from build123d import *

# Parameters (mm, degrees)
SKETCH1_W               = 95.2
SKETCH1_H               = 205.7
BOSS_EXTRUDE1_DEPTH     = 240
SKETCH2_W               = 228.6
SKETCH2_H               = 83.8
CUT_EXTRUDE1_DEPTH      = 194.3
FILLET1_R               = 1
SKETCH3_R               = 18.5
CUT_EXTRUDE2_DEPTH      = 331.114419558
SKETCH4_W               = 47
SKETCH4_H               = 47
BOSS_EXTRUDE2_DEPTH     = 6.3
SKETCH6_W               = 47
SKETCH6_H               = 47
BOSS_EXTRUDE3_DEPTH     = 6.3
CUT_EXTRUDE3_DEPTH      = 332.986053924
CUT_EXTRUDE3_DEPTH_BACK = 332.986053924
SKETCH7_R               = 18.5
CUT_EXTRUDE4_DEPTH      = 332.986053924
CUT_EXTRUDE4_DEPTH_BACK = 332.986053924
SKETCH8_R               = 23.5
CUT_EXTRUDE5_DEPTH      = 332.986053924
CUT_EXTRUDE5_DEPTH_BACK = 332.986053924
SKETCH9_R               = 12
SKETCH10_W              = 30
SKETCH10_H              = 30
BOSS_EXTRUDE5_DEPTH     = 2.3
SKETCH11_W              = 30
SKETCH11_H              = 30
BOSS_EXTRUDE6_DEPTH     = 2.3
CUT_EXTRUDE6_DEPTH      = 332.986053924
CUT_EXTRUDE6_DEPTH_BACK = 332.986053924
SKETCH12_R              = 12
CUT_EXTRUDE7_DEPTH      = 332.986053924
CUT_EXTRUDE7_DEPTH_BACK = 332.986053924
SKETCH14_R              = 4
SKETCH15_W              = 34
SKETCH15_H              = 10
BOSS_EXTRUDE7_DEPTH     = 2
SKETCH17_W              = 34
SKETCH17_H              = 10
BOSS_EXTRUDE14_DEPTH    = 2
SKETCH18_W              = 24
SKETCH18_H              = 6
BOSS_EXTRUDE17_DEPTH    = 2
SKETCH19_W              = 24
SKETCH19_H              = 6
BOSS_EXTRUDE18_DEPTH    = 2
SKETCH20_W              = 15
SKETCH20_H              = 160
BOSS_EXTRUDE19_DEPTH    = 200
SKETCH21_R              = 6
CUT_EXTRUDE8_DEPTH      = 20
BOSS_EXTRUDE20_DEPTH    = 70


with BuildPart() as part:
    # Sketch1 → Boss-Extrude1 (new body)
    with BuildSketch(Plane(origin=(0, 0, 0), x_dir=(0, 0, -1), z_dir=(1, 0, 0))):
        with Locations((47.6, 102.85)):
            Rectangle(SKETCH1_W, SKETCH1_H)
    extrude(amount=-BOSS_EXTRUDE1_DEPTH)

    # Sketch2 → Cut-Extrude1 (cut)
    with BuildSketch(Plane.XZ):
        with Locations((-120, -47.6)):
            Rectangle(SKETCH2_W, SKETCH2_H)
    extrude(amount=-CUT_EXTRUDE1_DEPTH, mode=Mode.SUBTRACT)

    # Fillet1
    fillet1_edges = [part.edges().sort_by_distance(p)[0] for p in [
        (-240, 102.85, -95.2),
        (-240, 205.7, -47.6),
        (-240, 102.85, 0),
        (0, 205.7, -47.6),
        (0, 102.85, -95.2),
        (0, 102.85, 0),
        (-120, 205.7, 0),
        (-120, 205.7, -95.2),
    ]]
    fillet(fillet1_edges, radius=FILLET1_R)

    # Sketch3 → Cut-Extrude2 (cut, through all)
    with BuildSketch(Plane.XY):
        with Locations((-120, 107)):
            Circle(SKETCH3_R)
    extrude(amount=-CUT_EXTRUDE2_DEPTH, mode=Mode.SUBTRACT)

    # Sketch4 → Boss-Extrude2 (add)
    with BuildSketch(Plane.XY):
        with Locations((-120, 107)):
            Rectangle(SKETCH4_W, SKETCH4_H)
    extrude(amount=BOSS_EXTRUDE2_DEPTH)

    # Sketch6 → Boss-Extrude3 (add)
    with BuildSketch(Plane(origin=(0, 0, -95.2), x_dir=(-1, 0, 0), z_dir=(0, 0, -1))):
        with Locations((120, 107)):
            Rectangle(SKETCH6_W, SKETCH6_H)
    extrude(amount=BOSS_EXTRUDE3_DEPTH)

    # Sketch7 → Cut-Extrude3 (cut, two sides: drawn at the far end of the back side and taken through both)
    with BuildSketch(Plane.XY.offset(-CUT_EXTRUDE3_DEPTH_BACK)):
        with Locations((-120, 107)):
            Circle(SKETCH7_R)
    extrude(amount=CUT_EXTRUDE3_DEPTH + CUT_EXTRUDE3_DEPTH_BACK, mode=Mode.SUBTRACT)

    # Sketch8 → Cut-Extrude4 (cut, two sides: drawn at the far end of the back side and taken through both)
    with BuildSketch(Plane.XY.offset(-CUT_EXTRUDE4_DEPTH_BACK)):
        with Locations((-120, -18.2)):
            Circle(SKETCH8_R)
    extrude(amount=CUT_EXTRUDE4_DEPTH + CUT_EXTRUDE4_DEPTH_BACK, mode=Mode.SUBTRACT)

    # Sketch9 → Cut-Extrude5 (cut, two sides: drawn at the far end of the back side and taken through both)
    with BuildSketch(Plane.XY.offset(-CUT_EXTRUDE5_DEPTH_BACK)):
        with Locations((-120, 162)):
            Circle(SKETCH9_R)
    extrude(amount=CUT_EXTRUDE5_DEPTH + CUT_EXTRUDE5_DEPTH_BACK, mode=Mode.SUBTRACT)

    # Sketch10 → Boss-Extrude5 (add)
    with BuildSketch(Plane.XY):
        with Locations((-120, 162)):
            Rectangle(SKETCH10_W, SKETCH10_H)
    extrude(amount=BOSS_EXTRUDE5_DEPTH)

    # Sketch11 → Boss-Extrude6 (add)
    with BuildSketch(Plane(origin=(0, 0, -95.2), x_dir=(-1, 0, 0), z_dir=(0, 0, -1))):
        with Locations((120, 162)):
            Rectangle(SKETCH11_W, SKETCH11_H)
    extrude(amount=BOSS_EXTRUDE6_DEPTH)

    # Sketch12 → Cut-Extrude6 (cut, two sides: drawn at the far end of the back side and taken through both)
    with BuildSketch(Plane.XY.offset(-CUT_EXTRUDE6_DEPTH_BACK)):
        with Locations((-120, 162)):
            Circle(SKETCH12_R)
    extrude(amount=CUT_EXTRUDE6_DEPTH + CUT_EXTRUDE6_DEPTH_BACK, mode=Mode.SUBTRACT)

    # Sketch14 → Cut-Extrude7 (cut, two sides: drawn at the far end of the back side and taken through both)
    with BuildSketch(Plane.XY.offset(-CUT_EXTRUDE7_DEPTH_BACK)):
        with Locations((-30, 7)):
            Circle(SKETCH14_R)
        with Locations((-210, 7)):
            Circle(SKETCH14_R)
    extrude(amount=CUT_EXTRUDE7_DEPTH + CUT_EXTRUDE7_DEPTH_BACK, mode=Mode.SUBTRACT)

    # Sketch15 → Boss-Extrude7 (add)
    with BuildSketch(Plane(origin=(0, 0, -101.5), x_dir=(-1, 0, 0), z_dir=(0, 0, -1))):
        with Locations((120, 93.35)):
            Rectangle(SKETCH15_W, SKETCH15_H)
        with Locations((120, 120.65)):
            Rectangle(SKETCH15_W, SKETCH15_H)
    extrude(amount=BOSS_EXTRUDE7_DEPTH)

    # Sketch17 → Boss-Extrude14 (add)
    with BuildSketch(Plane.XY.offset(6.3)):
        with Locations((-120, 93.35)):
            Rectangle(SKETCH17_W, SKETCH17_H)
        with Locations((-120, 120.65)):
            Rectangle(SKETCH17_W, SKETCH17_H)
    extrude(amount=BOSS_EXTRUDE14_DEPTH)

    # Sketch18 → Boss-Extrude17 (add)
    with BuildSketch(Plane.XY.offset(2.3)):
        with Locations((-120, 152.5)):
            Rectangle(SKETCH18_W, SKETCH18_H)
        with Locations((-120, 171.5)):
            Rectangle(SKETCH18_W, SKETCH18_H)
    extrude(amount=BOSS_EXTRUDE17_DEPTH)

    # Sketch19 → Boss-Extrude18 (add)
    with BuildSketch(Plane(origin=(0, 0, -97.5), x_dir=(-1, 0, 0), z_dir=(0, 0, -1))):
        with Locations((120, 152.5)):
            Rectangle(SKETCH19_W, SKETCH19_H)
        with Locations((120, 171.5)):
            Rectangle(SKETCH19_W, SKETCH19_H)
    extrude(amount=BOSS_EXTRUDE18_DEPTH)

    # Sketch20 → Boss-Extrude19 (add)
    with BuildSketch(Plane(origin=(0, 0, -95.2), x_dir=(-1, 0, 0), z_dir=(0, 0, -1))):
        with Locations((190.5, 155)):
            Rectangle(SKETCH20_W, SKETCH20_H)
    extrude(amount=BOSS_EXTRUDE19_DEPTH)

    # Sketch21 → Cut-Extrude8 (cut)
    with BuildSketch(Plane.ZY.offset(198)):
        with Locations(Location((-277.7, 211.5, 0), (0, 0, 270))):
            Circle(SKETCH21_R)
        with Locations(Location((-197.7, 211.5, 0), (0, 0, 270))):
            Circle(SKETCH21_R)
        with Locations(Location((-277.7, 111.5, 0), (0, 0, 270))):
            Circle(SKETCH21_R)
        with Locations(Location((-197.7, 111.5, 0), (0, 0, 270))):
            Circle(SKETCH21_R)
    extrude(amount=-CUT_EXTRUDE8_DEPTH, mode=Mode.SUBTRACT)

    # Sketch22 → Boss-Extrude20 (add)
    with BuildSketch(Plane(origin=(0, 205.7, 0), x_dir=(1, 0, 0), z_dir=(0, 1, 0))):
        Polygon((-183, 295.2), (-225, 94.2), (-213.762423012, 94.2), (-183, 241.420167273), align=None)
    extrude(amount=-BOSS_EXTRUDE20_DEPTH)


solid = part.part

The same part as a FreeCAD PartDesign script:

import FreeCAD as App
import Part
import Sketcher


def edges_at(feature, points):
    """Names of the edges that pass closest to the given points."""
    edges = feature.Shape.Edges
    near = lambda p: min(range(len(edges)), key=lambda i: edges[i].distToShape(Part.Vertex(*p))[0])
    return sorted({f"Edge{near(p) + 1}" for p in points})


def add_polygon(sketch, points):
    """Adds a closed chain of lines whose ends are joined by coincident constraints."""
    first, n = sketch.GeometryCount, len(points)
    for a, b in zip(points, points[1:] + points[:1]):
        sketch.addGeometry(Part.LineSegment(App.Vector(*a, 0), App.Vector(*b, 0)), False)
    for i in range(n):
        sketch.addConstraint(Sketcher.Constraint("Coincident", first + i, 2, first + (i + 1) % n, 1))

doc = App.newDocument("Part")
body = doc.addObject("PartDesign::Body", "Body")

sketch1 = body.newObject("Sketcher::SketchObject", "Sketch")
sketch1.AttachmentSupport = (doc.getObject("YZ_Plane"), [""])
sketch1.MapMode = "FlatFace"
add_polygon(sketch1, [(206, 0), (0, 0), (0, -95), (206, -95)])
sketch1.addConstraint([
    Sketcher.Constraint("Horizontal", 0),
    Sketcher.Constraint("Vertical", 1),
    Sketcher.Constraint("Horizontal", 2),
    Sketcher.Constraint("Vertical", 3),
    Sketcher.Constraint("Coincident", 0, 2, -1, 1),
    Sketcher.Constraint("DistanceX", 0, 2, 0, 1, 205.7),
    Sketcher.Constraint("DistanceY", 1, 2, 1, 1, 95.2),
])
pad1 = body.newObject("PartDesign::Pad", "Pad")
pad1.Profile = sketch1
pad1.Length = 240
pad1.Reversed = True

sketch2 = body.newObject("Sketcher::SketchObject", "Sketch001")
sketch2.AttachmentSupport = (doc.getObject("XZ_Plane"), [""])
sketch2.MapMode = "FlatFace"
add_polygon(sketch2, [(-234, -6), (-234, -90), (-6, -90), (-6, -6)])
sketch2.addConstraint([
    Sketcher.Constraint("Vertical", 0),
    Sketcher.Constraint("Horizontal", 1),
    Sketcher.Constraint("Vertical", 2),
    Sketcher.Constraint("Horizontal", 3),
    Sketcher.Constraint("DistanceX", 1, 1, 1, 2, 228.6),
    Sketcher.Constraint("DistanceY", 0, 2, 0, 1, 83.8),
    Sketcher.Constraint("DistanceX", 0, 2, -1, 1, 234.3),
    Sketcher.Constraint("DistanceY", 0, 2, -1, 1, 89.5),
])
pocket1 = body.newObject("PartDesign::Pocket", "Pocket")
pocket1.Profile = sketch2
pocket1.Length = 194.3
doc.recompute()

fillet = body.newObject("PartDesign::Fillet", "Fillet")
fillet.Base = (pocket1, edges_at(pocket1, [
    (-240, 102.85, -95.2),
    (-240, 205.7, -47.6),
    (-240, 102.85, 0),
    (0, 205.7, -47.6),
    (0, 102.85, -95.2),
    (0, 102.85, 0),
    (-120, 205.7, 0),
    (-120, 205.7, -95.2),
]))
fillet.Radius = 1

sketch3 = body.newObject("Sketcher::SketchObject", "Sketch002")
sketch3.AttachmentSupport = (doc.getObject("XY_Plane"), [""])
sketch3.MapMode = "FlatFace"
sketch3.addGeometry(Part.Circle(App.Vector(-120, 107, 0), App.Vector(0, 0, 1), 18), False)
sketch3.addConstraint([
    Sketcher.Constraint("Diameter", 0, 37.0),
    Sketcher.Constraint("DistanceX", 0, 3, -1, 1, 120.0),
    Sketcher.Constraint("DistanceY", -1, 1, 0, 3, 107.0),
])
pocket2 = body.newObject("PartDesign::Pocket", "Pocket001")
pocket2.Profile = sketch3
pocket2.Type = "ThroughAll"

sketch4 = body.newObject("Sketcher::SketchObject", "Sketch003")
sketch4.AttachmentSupport = (doc.getObject("XY_Plane"), [""])
sketch4.MapMode = "FlatFace"
add_polygon(sketch4, [(-144, 130), (-144, 84), (-96, 84), (-96, 130)])
sketch4.addConstraint([
    Sketcher.Constraint("Vertical", 0),
    Sketcher.Constraint("Horizontal", 1),
    Sketcher.Constraint("Vertical", 2),
    Sketcher.Constraint("Horizontal", 3),
    Sketcher.Constraint("Equal", 3, 0),
    Sketcher.Constraint("DistanceX", 1, 1, 1, 2, 47.0),
    Sketcher.Constraint("DistanceX", 0, 2, -1, 1, 143.5),
    Sketcher.Constraint("DistanceY", -1, 1, 0, 2, 83.5),
])
pad2 = body.newObject("PartDesign::Pad", "Pad001")
pad2.Profile = sketch4
pad2.Length = 6.3

sketch5 = body.newObject("Sketcher::SketchObject", "Sketch004")
sketch5.AttachmentSupport = (doc.getObject("XY_Plane"), [""])
sketch5.MapMode = "FlatFace"
sketch5.AttachmentOffset = App.Placement(App.Vector(0, 0, -95.2), App.Rotation())
add_polygon(sketch5, [(-96, 130), (-96, 84), (-144, 84), (-144, 130)])
sketch5.addConstraint([
    Sketcher.Constraint("Vertical", 0),
    Sketcher.Constraint("Horizontal", 1),
    Sketcher.Constraint("Vertical", 2),
    Sketcher.Constraint("Horizontal", 3),
    Sketcher.Constraint("Equal", 3, 0),
    Sketcher.Constraint("DistanceX", 1, 2, 1, 1, 47.0),
    Sketcher.Constraint("DistanceX", 0, 2, -1, 1, 96.5),
    Sketcher.Constraint("DistanceY", -1, 1, 0, 2, 83.5),
])
pad3 = body.newObject("PartDesign::Pad", "Pad002")
pad3.Profile = sketch5
pad3.Length = 6.3
pad3.Reversed = True

sketch6 = body.newObject("Sketcher::SketchObject", "Sketch005")
sketch6.AttachmentSupport = (doc.getObject("XY_Plane"), [""])
sketch6.MapMode = "FlatFace"
sketch6.addGeometry(Part.Circle(App.Vector(-120, 107, 0), App.Vector(0, 0, 1), 18), False)
sketch6.addConstraint([
    Sketcher.Constraint("Diameter", 0, 37.0),
    Sketcher.Constraint("DistanceX", 0, 3, -1, 1, 120.0),
    Sketcher.Constraint("DistanceY", -1, 1, 0, 3, 107.0),
])
pocket3 = body.newObject("PartDesign::Pocket", "Pocket002")
pocket3.Profile = sketch6
pocket3.Type = "ThroughAll"
pocket3.Midplane = True

sketch7 = body.newObject("Sketcher::SketchObject", "Sketch006")
sketch7.AttachmentSupport = (doc.getObject("XY_Plane"), [""])
sketch7.MapMode = "FlatFace"
sketch7.addGeometry(Part.Circle(App.Vector(-120, -18, 0), App.Vector(0, 0, 1), 24), False)
sketch7.addConstraint([
    Sketcher.Constraint("Diameter", 0, 47.0),
    Sketcher.Constraint("DistanceX", 0, 3, -1, 1, 120.0),
    Sketcher.Constraint("DistanceY", 0, 3, -1, 1, 18.2),
])
pocket4 = body.newObject("PartDesign::Pocket", "Pocket003")
pocket4.Profile = sketch7
pocket4.Type = "ThroughAll"
pocket4.Midplane = True

sketch8 = body.newObject("Sketcher::SketchObject", "Sketch007")
sketch8.AttachmentSupport = (doc.getObject("XY_Plane"), [""])
sketch8.MapMode = "FlatFace"
sketch8.addGeometry(Part.Circle(App.Vector(-120, 162, 0), App.Vector(0, 0, 1), 12), False)
sketch8.addConstraint([
    Sketcher.Constraint("Diameter", 0, 24.0),
    Sketcher.Constraint("DistanceX", 0, 3, -1, 1, 120.0),
    Sketcher.Constraint("DistanceY", -1, 1, 0, 3, 162.0),
])
pocket5 = body.newObject("PartDesign::Pocket", "Pocket004")
pocket5.Profile = sketch8
pocket5.Type = "ThroughAll"
pocket5.Midplane = True

sketch9 = body.newObject("Sketcher::SketchObject", "Sketch008")
sketch9.AttachmentSupport = (doc.getObject("XY_Plane"), [""])
sketch9.MapMode = "FlatFace"
add_polygon(sketch9, [(-135, 177), (-135, 147), (-105, 147), (-105, 177)])
sketch9.addConstraint([
    Sketcher.Constraint("Vertical", 0),
    Sketcher.Constraint("Horizontal", 1),
    Sketcher.Constraint("Vertical", 2),
    Sketcher.Constraint("Horizontal", 3),
    Sketcher.Constraint("Equal", 3, 0),
    Sketcher.Constraint("DistanceX", 1, 1, 1, 2, 30.0),
    Sketcher.Constraint("DistanceX", 0, 2, -1, 1, 135.0),
    Sketcher.Constraint("DistanceY", -1, 1, 0, 2, 147.0),
])
pad4 = body.newObject("PartDesign::Pad", "Pad003")
pad4.Profile = sketch9
pad4.Length = 2.3

sketch10 = body.newObject("Sketcher::SketchObject", "Sketch009")
sketch10.AttachmentSupport = (doc.getObject("XY_Plane"), [""])
sketch10.MapMode = "FlatFace"
sketch10.AttachmentOffset = App.Placement(App.Vector(0, 0, -95.2), App.Rotation())
add_polygon(sketch10, [(-105, 177), (-105, 147), (-135, 147), (-135, 177)])
sketch10.addConstraint([
    Sketcher.Constraint("Vertical", 0),
    Sketcher.Constraint("Horizontal", 1),
    Sketcher.Constraint("Vertical", 2),
    Sketcher.Constraint("Horizontal", 3),
    Sketcher.Constraint("Equal", 3, 0),
    Sketcher.Constraint("DistanceX", 1, 2, 1, 1, 30.0),
    Sketcher.Constraint("DistanceX", 0, 2, -1, 1, 105.0),
    Sketcher.Constraint("DistanceY", -1, 1, 0, 2, 147.0),
])
pad5 = body.newObject("PartDesign::Pad", "Pad004")
pad5.Profile = sketch10
pad5.Length = 2.3
pad5.Reversed = True

sketch11 = body.newObject("Sketcher::SketchObject", "Sketch010")
sketch11.AttachmentSupport = (doc.getObject("XY_Plane"), [""])
sketch11.MapMode = "FlatFace"
sketch11.addGeometry(Part.Circle(App.Vector(-120, 162, 0), App.Vector(0, 0, 1), 12), False)
sketch11.addConstraint([
    Sketcher.Constraint("Diameter", 0, 24.0),
    Sketcher.Constraint("DistanceX", 0, 3, -1, 1, 120.0),
    Sketcher.Constraint("DistanceY", -1, 1, 0, 3, 162.0),
])
pocket6 = body.newObject("PartDesign::Pocket", "Pocket005")
pocket6.Profile = sketch11
pocket6.Type = "ThroughAll"
pocket6.Midplane = True

sketch12 = body.newObject("Sketcher::SketchObject", "Sketch011")
sketch12.AttachmentSupport = (doc.getObject("XY_Plane"), [""])
sketch12.MapMode = "FlatFace"
sketch12.addGeometry([
    Part.Circle(App.Vector(-30, 7, 0), App.Vector(0, 0, 1), 4),
    Part.Circle(App.Vector(-210, 7, 0), App.Vector(0, 0, 1), 4),
], False)
sketch12.addConstraint([
    Sketcher.Constraint("Equal", 0, 1),
    Sketcher.Constraint("Horizontal", 0, 3, 1, 3),
    Sketcher.Constraint("Diameter", 0, 8.0),
    Sketcher.Constraint("DistanceX", 0, 3, -1, 1, 30.0),
    Sketcher.Constraint("DistanceY", -1, 1, 0, 3, 7.0),
    Sketcher.Constraint("DistanceX", 1, 3, -1, 1, 210.0),
])
pocket7 = body.newObject("PartDesign::Pocket", "Pocket006")
pocket7.Profile = sketch12
pocket7.Type = "ThroughAll"
pocket7.Midplane = True

sketch13 = body.newObject("Sketcher::SketchObject", "Sketch012")
sketch13.AttachmentSupport = (doc.getObject("XY_Plane"), [""])
sketch13.MapMode = "FlatFace"
sketch13.AttachmentOffset = App.Placement(App.Vector(0, 0, -101.5), App.Rotation())
add_polygon(sketch13, [(-103, 98), (-103, 88), (-137, 88), (-137, 98)])
add_polygon(sketch13, [(-103, 126), (-103, 116), (-137, 116), (-137, 126)])
sketch13.addConstraint([
    Sketcher.Constraint("Vertical", 0),
    Sketcher.Constraint("Horizontal", 1),
    Sketcher.Constraint("Vertical", 2),
    Sketcher.Constraint("Horizontal", 3),
    Sketcher.Constraint("Vertical", 4),
    Sketcher.Constraint("Horizontal", 5),
    Sketcher.Constraint("Vertical", 6),
    Sketcher.Constraint("Horizontal", 7),
    Sketcher.Constraint("Vertical", 3, 2, 4, 2),
    Sketcher.Constraint("Vertical", 2, 2, 5, 2),
    Sketcher.Constraint("Equal", 2, 4),
    Sketcher.Constraint("DistanceX", 1, 2, 1, 1, 34.0),
    Sketcher.Constraint("DistanceY", 0, 2, 0, 1, 10.0),
    Sketcher.Constraint("DistanceX", 0, 2, -1, 1, 103.0),
    Sketcher.Constraint("DistanceY", 3, 2, 4, 2, 17.3),
    Sketcher.Constraint("DistanceY", -1, 1, 0, 2, 88.35),
])
pad6 = body.newObject("PartDesign::Pad", "Pad005")
pad6.Profile = sketch13
pad6.Length = 2
pad6.Reversed = True

sketch14 = body.newObject("Sketcher::SketchObject", "Sketch013")
sketch14.AttachmentSupport = (doc.getObject("XY_Plane"), [""])
sketch14.MapMode = "FlatFace"
sketch14.AttachmentOffset = App.Placement(App.Vector(0, 0, 6.3), App.Rotation())
add_polygon(sketch14, [(-137, 98), (-137, 88), (-103, 88), (-103, 98)])
add_polygon(sketch14, [(-137, 126), (-137, 116), (-103, 116), (-103, 126)])
sketch14.addConstraint([
    Sketcher.Constraint("Vertical", 0),
    Sketcher.Constraint("Horizontal", 1),
    Sketcher.Constraint("Vertical", 2),
    Sketcher.Constraint("Horizontal", 3),
    Sketcher.Constraint("Vertical", 4),
    Sketcher.Constraint("Horizontal", 5),
    Sketcher.Constraint("Vertical", 6),
    Sketcher.Constraint("Horizontal", 7),
    Sketcher.Constraint("Vertical", 3, 2, 4, 2),
    Sketcher.Constraint("Vertical", 2, 2, 5, 2),
    Sketcher.Constraint("Equal", 2, 4),
    Sketcher.Constraint("DistanceX", 1, 1, 1, 2, 34.0),
    Sketcher.Constraint("DistanceY", 0, 2, 0, 1, 10.0),
    Sketcher.Constraint("DistanceX", 0, 2, -1, 1, 137.0),
    Sketcher.Constraint("DistanceY", 3, 2, 4, 2, 17.3),
    Sketcher.Constraint("DistanceY", -1, 1, 0, 2, 88.35),
])
pad7 = body.newObject("PartDesign::Pad", "Pad006")
pad7.Profile = sketch14
pad7.Length = 2

sketch15 = body.newObject("Sketcher::SketchObject", "Sketch014")
sketch15.AttachmentSupport = (doc.getObject("XY_Plane"), [""])
sketch15.MapMode = "FlatFace"
sketch15.AttachmentOffset = App.Placement(App.Vector(0, 0, 2.3), App.Rotation())
add_polygon(sketch15, [(-132, 156), (-132, 150), (-108, 150), (-108, 156)])
add_polygon(sketch15, [(-132, 174), (-132, 168), (-108, 168), (-108, 174)])
sketch15.addConstraint([
    Sketcher.Constraint("Vertical", 0),
    Sketcher.Constraint("Horizontal", 1),
    Sketcher.Constraint("Vertical", 2),
    Sketcher.Constraint("Horizontal", 3),
    Sketcher.Constraint("Vertical", 4),
    Sketcher.Constraint("Horizontal", 5),
    Sketcher.Constraint("Vertical", 6),
    Sketcher.Constraint("Horizontal", 7),
    Sketcher.Constraint("Vertical", 3, 2, 4, 2),
    Sketcher.Constraint("Vertical", 2, 2, 5, 2),
    Sketcher.Constraint("Equal", 2, 4),
    Sketcher.Constraint("DistanceX", 1, 1, 1, 2, 24.0),
    Sketcher.Constraint("DistanceY", 0, 2, 0, 1, 6.0),
    Sketcher.Constraint("DistanceX", 0, 2, -1, 1, 132.0),
    Sketcher.Constraint("DistanceY", 3, 2, 4, 2, 13.0),
    Sketcher.Constraint("DistanceY", -1, 1, 0, 2, 149.5),
])
pad8 = body.newObject("PartDesign::Pad", "Pad007")
pad8.Profile = sketch15
pad8.Length = 2

sketch16 = body.newObject("Sketcher::SketchObject", "Sketch015")
sketch16.AttachmentSupport = (doc.getObject("XY_Plane"), [""])
sketch16.MapMode = "FlatFace"
sketch16.AttachmentOffset = App.Placement(App.Vector(0, 0, -97.5), App.Rotation())
add_polygon(sketch16, [(-108, 156), (-108, 150), (-132, 150), (-132, 156)])
add_polygon(sketch16, [(-108, 174), (-108, 168), (-132, 168), (-132, 174)])
sketch16.addConstraint([
    Sketcher.Constraint("Vertical", 0),
    Sketcher.Constraint("Horizontal", 1),
    Sketcher.Constraint("Vertical", 2),
    Sketcher.Constraint("Horizontal", 3),
    Sketcher.Constraint("Vertical", 4),
    Sketcher.Constraint("Horizontal", 5),
    Sketcher.Constraint("Vertical", 6),
    Sketcher.Constraint("Horizontal", 7),
    Sketcher.Constraint("Vertical", 3, 2, 4, 2),
    Sketcher.Constraint("Vertical", 2, 2, 5, 2),
    Sketcher.Constraint("Equal", 2, 4),
    Sketcher.Constraint("DistanceX", 1, 2, 1, 1, 24.0),
    Sketcher.Constraint("DistanceY", 0, 2, 0, 1, 6.0),
    Sketcher.Constraint("DistanceX", 0, 2, -1, 1, 108.0),
    Sketcher.Constraint("DistanceY", 3, 2, 4, 2, 13.0),
    Sketcher.Constraint("DistanceY", -1, 1, 0, 2, 149.5),
])
pad9 = body.newObject("PartDesign::Pad", "Pad008")
pad9.Profile = sketch16
pad9.Length = 2
pad9.Reversed = True

sketch17 = body.newObject("Sketcher::SketchObject", "Sketch016")
sketch17.AttachmentSupport = (doc.getObject("XY_Plane"), [""])
sketch17.MapMode = "FlatFace"
sketch17.AttachmentOffset = App.Placement(App.Vector(0, 0, -95.2), App.Rotation())
add_polygon(sketch17, [(-183, 235), (-183, 75), (-198, 75), (-198, 235)])
sketch17.addConstraint([
    Sketcher.Constraint("Vertical", 0),
    Sketcher.Constraint("Horizontal", 1),
    Sketcher.Constraint("Vertical", 2),
    Sketcher.Constraint("Horizontal", 3),
    Sketcher.Constraint("DistanceX", 1, 2, 1, 1, 15.0),
    Sketcher.Constraint("DistanceY", 0, 2, 0, 1, 160.0),
    Sketcher.Constraint("DistanceX", 0, 2, -1, 1, 183.0),
    Sketcher.Constraint("DistanceY", -1, 1, 0, 2, 75.0),
])
pad10 = body.newObject("PartDesign::Pad", "Pad009")
pad10.Profile = sketch17
pad10.Length = 200
pad10.Reversed = True

sketch18 = body.newObject("Sketcher::SketchObject", "Sketch017")
sketch18.AttachmentSupport = (doc.getObject("YZ_Plane"), [""])
sketch18.MapMode = "FlatFace"
sketch18.AttachmentOffset = App.Placement(App.Vector(0, 0, -198), App.Rotation())
sketch18.addGeometry([
    Part.Circle(App.Vector(212, -278, 0), App.Vector(0, 0, 1), 6),
    Part.Circle(App.Vector(212, -198, 0), App.Vector(0, 0, 1), 6),
    Part.Circle(App.Vector(112, -278, 0), App.Vector(0, 0, 1), 6),
    Part.Circle(App.Vector(112, -198, 0), App.Vector(0, 0, 1), 6),
], False)
sketch18.addConstraint([
    Sketcher.Constraint("Equal", 0, 1),
    Sketcher.Constraint("Equal", 1, 2),
    Sketcher.Constraint("Equal", 2, 3),
    Sketcher.Constraint("Horizontal", 0, 3, 2, 3),
    Sketcher.Constraint("Horizontal", 1, 3, 3, 3),
    Sketcher.Constraint("Vertical", 0, 3, 1, 3),
    Sketcher.Constraint("Vertical", 2, 3, 3, 3),
    Sketcher.Constraint("Diameter", 0, 12.0),
    Sketcher.Constraint("DistanceY", 0, 3, 1, 3, 80.0),
    Sketcher.Constraint("DistanceX", 2, 3, 0, 3, 100.0),
    Sketcher.Constraint("DistanceX", -1, 1, 0, 3, 211.5),
    Sketcher.Constraint("DistanceY", 0, 3, -1, 1, 277.7),
])
pocket8 = body.newObject("PartDesign::Pocket", "Pocket007")
pocket8.Profile = sketch18
pocket8.Length = 20
pocket8.Reversed = True

sketch19 = body.newObject("Sketcher::SketchObject", "Sketch018")
sketch19.AttachmentSupport = (doc.getObject("XZ_Plane"), [""])
sketch19.MapMode = "FlatFace"
sketch19.AttachmentOffset = App.Placement(App.Vector(0, 0, -205.7), App.Rotation())
add_polygon(sketch19, [(-183, -295), (-225, -94), (-214, -94), (-183, -241)])
sketch19.addConstraint([
    Sketcher.Constraint("Horizontal", 1),
    Sketcher.Constraint("Vertical", 3),
    Sketcher.Constraint("Parallel", 0, 2),
    Sketcher.Constraint("DistanceX", 0, 2, -1, 1, 225.0),
    Sketcher.Constraint("DistanceX", 2, 2, -1, 1, 183.0),
    Sketcher.Constraint("DistanceY", 3, 2, 1, 2, 201.0),
    Sketcher.Constraint("DistanceY", 0, 2, -1, 1, 94.2),
    Sketcher.Constraint("DistanceX", 1, 1, 1, 2, 11.237577),
])
pad11 = body.newObject("PartDesign::Pad", "Pad010")
pad11.Profile = sketch19
pad11.Length = 70

doc.recompute()
